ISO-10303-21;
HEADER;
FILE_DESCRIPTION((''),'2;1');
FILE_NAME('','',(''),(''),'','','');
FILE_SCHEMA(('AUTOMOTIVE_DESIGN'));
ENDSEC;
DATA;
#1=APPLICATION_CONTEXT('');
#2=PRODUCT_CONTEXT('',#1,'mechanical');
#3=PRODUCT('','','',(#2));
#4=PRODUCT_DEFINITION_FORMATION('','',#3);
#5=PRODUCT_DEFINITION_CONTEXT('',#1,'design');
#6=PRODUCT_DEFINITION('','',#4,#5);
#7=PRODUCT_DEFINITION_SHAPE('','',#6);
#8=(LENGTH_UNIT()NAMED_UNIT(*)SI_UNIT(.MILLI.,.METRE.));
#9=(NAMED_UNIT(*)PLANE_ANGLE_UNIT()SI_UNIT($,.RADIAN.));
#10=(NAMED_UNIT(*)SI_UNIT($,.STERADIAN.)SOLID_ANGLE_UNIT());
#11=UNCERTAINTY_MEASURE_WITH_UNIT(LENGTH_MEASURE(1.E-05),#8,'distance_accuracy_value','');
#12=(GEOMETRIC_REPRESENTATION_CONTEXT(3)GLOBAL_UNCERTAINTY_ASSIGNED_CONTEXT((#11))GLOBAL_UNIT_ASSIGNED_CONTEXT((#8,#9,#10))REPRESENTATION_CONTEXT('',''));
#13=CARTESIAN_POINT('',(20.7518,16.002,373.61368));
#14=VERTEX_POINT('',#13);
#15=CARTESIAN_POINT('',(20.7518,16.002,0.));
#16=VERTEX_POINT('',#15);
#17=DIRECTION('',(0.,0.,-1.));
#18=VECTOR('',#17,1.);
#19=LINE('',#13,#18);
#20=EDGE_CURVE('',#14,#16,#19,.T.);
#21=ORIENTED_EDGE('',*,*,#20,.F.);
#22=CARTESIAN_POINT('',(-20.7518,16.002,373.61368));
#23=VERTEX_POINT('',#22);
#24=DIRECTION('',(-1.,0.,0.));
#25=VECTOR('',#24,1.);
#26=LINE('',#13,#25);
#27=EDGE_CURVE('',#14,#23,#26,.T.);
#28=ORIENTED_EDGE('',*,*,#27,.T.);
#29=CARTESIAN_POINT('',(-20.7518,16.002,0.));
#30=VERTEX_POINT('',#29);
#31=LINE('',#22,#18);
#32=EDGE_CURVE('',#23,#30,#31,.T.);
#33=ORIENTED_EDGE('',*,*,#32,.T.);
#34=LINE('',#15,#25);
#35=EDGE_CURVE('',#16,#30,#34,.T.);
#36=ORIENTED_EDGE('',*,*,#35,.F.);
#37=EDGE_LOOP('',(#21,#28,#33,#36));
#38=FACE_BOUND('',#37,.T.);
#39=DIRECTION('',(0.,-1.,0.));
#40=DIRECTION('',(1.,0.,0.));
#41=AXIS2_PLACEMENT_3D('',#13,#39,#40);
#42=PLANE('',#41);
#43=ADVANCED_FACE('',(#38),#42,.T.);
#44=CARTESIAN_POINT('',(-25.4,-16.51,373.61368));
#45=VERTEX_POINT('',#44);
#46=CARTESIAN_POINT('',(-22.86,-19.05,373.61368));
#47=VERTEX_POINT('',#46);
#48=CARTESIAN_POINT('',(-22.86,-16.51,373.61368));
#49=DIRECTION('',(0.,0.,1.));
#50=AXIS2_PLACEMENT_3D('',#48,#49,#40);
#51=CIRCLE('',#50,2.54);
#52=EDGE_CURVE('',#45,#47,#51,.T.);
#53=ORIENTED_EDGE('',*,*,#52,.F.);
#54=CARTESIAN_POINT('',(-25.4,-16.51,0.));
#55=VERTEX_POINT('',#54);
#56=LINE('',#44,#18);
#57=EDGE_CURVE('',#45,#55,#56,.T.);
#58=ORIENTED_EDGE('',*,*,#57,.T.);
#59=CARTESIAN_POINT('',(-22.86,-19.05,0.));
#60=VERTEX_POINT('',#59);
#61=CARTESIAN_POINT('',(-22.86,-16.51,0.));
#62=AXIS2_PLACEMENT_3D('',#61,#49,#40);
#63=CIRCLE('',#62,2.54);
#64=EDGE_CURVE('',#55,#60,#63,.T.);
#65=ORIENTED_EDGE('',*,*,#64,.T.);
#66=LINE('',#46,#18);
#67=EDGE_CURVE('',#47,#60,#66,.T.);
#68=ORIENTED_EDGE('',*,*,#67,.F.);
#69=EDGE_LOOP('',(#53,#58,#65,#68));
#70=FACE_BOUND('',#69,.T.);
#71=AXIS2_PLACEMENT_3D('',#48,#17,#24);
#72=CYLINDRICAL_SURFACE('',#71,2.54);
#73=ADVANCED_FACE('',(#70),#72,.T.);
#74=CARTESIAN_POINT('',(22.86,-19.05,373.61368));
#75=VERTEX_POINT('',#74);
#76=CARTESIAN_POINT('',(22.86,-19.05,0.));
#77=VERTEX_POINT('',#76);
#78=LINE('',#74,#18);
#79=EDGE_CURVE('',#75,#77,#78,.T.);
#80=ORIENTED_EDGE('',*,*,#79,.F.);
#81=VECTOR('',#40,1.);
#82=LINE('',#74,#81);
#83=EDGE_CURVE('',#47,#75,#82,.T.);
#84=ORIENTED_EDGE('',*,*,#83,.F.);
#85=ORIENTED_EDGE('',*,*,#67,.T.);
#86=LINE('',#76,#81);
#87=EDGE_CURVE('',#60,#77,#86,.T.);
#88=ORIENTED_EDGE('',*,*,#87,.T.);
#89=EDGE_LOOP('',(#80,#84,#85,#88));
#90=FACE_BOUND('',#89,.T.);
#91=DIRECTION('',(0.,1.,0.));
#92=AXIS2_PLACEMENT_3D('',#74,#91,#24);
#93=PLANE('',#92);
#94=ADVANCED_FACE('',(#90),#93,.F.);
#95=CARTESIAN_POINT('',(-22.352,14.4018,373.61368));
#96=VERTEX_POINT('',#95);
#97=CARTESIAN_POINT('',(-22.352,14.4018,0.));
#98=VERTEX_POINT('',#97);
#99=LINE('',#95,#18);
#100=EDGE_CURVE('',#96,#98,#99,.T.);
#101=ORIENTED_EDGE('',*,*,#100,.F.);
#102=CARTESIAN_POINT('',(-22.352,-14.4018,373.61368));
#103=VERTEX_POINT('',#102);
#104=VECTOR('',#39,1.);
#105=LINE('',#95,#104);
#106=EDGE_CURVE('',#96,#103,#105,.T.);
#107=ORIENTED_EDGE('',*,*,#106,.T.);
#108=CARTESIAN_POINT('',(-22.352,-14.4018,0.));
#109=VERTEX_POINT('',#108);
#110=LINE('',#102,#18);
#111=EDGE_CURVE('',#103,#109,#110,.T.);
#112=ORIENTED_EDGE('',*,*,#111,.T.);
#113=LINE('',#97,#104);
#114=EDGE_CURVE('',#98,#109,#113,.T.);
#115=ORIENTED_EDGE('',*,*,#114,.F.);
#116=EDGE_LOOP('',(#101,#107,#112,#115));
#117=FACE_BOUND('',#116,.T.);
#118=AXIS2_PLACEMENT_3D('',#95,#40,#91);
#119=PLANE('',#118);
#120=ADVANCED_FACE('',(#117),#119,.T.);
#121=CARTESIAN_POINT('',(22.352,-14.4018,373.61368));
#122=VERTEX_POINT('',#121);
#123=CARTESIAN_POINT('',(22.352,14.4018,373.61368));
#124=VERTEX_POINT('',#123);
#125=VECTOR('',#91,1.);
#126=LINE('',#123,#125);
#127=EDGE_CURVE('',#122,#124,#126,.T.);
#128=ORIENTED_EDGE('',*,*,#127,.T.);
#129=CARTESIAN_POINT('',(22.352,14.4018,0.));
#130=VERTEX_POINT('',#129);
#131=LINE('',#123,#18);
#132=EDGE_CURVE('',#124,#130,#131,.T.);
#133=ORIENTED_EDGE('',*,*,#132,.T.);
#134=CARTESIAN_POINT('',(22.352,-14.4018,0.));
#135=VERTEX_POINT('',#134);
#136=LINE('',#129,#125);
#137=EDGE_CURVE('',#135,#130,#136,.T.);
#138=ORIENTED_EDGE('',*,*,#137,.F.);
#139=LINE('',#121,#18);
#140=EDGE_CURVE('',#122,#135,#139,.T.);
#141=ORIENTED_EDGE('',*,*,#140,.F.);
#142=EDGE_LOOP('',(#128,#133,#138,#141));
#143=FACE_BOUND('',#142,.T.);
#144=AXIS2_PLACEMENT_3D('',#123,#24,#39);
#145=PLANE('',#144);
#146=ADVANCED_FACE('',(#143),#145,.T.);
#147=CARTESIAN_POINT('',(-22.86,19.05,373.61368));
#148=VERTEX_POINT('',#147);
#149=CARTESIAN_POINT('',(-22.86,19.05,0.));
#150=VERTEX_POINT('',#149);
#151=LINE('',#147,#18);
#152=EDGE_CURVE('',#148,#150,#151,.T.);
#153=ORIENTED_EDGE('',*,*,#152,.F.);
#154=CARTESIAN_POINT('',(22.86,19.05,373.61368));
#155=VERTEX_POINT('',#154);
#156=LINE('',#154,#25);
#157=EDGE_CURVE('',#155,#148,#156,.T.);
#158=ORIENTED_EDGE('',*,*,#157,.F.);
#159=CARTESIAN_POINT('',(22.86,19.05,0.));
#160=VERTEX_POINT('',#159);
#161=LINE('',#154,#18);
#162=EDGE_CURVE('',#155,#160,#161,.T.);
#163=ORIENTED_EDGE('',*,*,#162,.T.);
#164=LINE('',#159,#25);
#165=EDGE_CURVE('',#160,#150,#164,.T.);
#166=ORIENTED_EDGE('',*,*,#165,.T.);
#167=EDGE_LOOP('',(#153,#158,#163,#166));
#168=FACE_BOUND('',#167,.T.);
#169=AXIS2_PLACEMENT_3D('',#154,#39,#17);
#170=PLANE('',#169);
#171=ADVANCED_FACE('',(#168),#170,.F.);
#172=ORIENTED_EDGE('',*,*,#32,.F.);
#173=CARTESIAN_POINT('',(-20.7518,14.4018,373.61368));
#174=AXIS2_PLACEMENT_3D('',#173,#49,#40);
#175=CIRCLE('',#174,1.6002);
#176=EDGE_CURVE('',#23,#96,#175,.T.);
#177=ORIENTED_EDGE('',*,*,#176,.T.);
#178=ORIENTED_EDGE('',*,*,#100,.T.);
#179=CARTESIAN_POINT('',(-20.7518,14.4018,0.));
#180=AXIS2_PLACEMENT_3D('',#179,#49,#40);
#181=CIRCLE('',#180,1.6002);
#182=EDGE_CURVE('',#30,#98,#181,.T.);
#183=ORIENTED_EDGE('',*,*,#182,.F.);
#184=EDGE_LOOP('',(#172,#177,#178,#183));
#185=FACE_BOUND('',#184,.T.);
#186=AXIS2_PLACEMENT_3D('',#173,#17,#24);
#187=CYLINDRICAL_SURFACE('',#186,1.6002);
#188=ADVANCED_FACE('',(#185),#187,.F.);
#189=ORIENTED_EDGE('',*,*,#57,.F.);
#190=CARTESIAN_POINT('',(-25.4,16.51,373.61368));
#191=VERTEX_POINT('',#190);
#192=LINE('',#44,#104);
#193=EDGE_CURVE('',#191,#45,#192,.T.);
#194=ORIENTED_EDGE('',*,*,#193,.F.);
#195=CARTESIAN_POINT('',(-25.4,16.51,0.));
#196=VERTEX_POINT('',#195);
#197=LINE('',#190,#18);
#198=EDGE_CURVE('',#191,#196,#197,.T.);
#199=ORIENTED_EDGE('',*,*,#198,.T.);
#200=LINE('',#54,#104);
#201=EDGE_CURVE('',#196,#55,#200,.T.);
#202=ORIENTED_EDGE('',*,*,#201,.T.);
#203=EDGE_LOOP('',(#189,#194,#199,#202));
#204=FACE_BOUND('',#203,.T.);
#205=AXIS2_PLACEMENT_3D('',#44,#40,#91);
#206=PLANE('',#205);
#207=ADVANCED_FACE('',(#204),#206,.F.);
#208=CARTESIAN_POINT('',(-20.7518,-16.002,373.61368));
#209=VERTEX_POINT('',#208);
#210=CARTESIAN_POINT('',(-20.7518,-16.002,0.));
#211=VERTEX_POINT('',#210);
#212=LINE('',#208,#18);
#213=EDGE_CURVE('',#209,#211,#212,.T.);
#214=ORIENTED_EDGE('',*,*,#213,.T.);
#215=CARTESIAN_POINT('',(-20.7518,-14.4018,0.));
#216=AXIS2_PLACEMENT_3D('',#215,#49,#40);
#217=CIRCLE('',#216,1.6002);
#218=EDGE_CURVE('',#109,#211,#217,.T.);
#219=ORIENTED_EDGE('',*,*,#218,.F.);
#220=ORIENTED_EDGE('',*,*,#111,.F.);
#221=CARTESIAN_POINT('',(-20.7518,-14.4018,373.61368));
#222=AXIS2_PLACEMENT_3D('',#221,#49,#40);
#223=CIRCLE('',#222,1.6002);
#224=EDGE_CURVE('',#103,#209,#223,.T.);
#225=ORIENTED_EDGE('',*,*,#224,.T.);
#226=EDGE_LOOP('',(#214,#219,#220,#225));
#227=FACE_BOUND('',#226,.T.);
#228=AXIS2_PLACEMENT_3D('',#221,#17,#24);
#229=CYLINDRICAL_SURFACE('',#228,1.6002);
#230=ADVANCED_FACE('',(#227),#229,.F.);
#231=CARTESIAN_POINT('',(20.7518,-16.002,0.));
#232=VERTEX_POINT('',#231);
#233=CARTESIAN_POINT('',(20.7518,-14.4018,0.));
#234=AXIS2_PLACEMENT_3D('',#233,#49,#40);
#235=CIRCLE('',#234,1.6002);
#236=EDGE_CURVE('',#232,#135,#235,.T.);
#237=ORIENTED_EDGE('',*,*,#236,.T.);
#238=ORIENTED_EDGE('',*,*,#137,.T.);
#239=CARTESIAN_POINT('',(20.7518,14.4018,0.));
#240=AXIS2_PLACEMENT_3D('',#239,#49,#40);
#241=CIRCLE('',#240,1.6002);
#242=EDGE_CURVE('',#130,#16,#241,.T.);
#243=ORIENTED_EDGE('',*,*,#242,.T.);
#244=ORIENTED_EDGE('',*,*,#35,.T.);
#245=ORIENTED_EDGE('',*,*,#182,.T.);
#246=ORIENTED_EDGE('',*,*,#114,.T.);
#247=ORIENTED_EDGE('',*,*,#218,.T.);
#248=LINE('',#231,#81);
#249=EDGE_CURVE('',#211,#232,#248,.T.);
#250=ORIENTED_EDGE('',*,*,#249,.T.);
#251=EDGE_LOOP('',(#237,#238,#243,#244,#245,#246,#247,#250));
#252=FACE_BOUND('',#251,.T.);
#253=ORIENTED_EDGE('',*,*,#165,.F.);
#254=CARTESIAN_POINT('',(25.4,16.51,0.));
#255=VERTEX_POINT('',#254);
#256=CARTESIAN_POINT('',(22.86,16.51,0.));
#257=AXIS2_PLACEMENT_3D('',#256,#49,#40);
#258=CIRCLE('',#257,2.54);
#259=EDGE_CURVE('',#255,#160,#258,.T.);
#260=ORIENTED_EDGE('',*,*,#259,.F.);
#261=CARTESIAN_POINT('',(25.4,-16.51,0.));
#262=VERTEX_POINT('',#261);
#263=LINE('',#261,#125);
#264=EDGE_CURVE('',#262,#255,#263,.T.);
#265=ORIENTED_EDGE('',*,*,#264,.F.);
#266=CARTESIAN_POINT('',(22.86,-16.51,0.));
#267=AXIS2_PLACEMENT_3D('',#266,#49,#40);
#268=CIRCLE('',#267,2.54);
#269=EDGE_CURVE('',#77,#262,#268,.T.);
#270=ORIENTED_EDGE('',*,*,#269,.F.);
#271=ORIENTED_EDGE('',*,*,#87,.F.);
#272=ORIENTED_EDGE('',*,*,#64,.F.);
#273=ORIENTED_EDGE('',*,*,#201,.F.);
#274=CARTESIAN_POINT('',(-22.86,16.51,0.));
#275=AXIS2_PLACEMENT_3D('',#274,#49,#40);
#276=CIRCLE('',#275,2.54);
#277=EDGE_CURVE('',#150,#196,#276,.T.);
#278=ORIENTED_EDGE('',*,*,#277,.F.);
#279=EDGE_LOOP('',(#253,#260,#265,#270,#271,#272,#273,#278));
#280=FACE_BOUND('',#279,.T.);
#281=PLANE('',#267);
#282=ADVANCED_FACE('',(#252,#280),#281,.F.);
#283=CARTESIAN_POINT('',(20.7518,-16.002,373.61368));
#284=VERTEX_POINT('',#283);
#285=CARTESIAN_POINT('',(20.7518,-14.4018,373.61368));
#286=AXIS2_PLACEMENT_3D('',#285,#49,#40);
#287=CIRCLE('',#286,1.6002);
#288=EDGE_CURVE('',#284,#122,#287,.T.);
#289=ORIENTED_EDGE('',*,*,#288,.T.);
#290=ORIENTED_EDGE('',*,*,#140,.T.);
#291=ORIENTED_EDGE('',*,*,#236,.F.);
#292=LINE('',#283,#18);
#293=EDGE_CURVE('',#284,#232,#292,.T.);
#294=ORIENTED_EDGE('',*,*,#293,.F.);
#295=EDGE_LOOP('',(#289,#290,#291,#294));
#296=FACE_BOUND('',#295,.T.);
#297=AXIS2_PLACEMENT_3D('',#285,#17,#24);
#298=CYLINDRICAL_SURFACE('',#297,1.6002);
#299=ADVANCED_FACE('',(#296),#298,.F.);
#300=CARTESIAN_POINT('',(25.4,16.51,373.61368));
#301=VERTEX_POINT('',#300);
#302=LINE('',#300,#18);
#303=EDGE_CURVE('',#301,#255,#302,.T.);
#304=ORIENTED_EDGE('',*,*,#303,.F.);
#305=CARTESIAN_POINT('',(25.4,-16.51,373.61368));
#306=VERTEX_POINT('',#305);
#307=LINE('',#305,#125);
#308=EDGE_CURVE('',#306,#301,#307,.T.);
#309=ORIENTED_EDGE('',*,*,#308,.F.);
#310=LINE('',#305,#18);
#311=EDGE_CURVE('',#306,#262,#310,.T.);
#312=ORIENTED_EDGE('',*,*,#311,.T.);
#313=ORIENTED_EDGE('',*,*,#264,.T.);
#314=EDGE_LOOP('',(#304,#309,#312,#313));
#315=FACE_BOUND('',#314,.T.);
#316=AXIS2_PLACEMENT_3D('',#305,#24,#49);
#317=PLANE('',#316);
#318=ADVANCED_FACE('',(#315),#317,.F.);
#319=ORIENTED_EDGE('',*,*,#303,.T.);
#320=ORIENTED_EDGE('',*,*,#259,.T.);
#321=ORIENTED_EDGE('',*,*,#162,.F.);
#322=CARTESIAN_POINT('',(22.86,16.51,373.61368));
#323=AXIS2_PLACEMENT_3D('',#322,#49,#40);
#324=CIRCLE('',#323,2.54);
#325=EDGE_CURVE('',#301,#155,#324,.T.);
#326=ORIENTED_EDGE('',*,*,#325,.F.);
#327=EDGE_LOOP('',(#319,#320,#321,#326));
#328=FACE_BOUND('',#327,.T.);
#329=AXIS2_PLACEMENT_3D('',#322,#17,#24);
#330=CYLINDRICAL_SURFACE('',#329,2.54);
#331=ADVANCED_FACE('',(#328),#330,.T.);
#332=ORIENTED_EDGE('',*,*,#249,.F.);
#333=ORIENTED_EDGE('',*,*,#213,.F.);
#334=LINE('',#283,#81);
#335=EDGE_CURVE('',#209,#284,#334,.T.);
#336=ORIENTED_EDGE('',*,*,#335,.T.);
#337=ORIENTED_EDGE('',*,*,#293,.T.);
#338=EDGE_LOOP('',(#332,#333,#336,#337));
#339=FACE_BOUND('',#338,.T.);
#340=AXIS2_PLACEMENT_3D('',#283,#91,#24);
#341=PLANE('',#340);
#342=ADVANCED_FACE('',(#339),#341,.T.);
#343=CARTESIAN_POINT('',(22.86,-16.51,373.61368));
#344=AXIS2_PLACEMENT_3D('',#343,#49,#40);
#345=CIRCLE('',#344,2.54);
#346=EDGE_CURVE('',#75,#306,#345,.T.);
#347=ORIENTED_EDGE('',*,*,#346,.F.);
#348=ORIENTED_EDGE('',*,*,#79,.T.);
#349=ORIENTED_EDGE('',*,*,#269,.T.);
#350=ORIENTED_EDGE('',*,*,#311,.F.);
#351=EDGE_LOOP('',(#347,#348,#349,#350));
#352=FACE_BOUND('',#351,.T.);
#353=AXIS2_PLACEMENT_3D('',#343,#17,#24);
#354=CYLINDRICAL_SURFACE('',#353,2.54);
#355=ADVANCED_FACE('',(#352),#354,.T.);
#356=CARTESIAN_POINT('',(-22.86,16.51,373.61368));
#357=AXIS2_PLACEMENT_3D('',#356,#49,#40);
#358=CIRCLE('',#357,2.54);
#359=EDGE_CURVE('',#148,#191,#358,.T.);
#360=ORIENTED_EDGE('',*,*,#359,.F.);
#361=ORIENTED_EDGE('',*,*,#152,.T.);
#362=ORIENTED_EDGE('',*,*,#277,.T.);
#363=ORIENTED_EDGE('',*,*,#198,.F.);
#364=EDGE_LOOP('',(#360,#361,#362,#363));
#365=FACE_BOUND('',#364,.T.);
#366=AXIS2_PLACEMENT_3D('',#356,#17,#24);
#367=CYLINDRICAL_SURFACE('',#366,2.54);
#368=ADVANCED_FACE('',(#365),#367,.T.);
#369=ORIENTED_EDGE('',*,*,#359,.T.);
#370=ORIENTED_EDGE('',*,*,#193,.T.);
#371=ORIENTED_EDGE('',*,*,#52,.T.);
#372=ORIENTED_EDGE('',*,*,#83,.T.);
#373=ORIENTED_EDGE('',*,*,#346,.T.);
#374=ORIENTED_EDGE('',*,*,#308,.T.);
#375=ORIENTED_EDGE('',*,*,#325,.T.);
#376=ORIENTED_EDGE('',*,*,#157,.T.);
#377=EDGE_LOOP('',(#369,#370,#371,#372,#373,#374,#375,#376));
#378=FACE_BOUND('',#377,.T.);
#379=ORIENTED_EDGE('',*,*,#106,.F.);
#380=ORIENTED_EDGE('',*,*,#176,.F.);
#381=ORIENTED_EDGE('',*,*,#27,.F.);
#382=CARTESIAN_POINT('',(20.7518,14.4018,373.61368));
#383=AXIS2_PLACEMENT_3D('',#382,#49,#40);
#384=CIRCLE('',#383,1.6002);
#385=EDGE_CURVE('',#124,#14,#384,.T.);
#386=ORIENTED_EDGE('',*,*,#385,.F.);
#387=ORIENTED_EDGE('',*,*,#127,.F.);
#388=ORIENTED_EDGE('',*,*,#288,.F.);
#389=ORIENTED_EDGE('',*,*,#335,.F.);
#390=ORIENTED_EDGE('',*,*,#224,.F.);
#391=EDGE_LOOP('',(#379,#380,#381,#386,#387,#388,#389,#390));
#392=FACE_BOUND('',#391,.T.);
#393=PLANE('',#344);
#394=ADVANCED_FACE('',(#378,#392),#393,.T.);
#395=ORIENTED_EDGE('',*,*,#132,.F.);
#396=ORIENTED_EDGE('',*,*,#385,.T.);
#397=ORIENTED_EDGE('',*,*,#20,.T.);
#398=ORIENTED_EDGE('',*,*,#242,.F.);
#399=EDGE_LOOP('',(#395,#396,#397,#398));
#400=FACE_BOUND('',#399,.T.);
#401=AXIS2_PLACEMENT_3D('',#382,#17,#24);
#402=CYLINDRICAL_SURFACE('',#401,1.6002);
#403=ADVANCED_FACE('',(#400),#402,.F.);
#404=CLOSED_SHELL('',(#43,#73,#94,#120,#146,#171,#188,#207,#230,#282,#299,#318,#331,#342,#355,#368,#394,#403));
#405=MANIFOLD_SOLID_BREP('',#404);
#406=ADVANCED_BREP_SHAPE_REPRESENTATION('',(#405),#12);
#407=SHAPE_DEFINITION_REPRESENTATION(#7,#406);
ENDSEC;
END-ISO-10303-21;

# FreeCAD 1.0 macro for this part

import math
import FreeCAD as App
import Part
import Sketcher
Q = App.Units.Quantity

doc = App.newDocument("Part")
body = doc.addObject("PartDesign::Body", "Body")

sketch1 = doc.addObject("Sketcher::SketchObject", "Sketch")
body.addObject(sketch1)
sketch1.AttachmentSupport = (doc.XY_Plane, [""])
sketch1.MapMode = "FlatFace"
sketch1.addGeometry([
    Part.LineSegment(App.Vector(25.4, -16.5, 0), App.Vector(25.4, 16.5, 0)),
    Part.ArcOfCircle(Part.Circle(App.Vector(22.9, 16.5, 0), App.Vector(0, 0, 1), 2.5), math.radians(0), math.radians(90)),
    Part.LineSegment(App.Vector(22.9, 19.1, 0), App.Vector(-22.9, 19.1, 0)),
    Part.ArcOfCircle(Part.Circle(App.Vector(-22.9, 16.5, 0), App.Vector(0, 0, 1), 2.5), math.radians(90), math.radians(180)),
    Part.LineSegment(App.Vector(-25.4, 16.5, 0), App.Vector(-25.4, -16.5, 0)),
    Part.ArcOfCircle(Part.Circle(App.Vector(-22.9, -16.5, 0), App.Vector(0, 0, 1), 2.5), math.radians(-180), math.radians(-90)),
    Part.LineSegment(App.Vector(-22.9, -19.1, 0), App.Vector(22.9, -19.1, 0)),
    Part.ArcOfCircle(Part.Circle(App.Vector(22.9, -16.5, 0), App.Vector(0, 0, 1), 2.5), math.radians(-90), math.radians(0)),
    Part.ArcOfCircle(Part.Circle(App.Vector(20.8, 14.4, 0), App.Vector(0, 0, 1), 1.6), math.radians(0), math.radians(90)),
    Part.LineSegment(App.Vector(22.4, 14.4, 0), App.Vector(22.4, -14.4, 0)),
    Part.ArcOfCircle(Part.Circle(App.Vector(20.8, -14.4, 0), App.Vector(0, 0, 1), 1.6), math.radians(-90), math.radians(0)),
    Part.LineSegment(App.Vector(20.8, -16, 0), App.Vector(-20.8, -16, 0)),
    Part.ArcOfCircle(Part.Circle(App.Vector(-20.8, -14.4, 0), App.Vector(0, 0, 1), 1.6), math.radians(-180), math.radians(-90)),
    Part.LineSegment(App.Vector(-22.4, -14.4, 0), App.Vector(-22.4, 14.4, 0)),
    Part.ArcOfCircle(Part.Circle(App.Vector(-20.8, 14.4, 0), App.Vector(0, 0, 1), 1.6), math.radians(90), math.radians(180)),
    Part.LineSegment(App.Vector(-20.8, 16, 0), App.Vector(20.8, 16, 0)),
], False)
sketch1.addConstraint([
    Sketcher.Constraint("Tangent", 0, 2, 1, 1),
    Sketcher.Constraint("Tangent", 1, 2, 2, 1),
    Sketcher.Constraint("Tangent", 2, 2, 3, 1),
    Sketcher.Constraint("Tangent", 3, 2, 4, 1),
    Sketcher.Constraint("Tangent", 4, 2, 5, 1),
    Sketcher.Constraint("Tangent", 5, 2, 6, 1),
    Sketcher.Constraint("Tangent", 6, 2, 7, 1),
    Sketcher.Constraint("Tangent", 7, 2, 0, 1),
    Sketcher.Constraint("Tangent", 8, 1, 9, 1),
    Sketcher.Constraint("Tangent", 9, 2, 10, 2),
    Sketcher.Constraint("Tangent", 10, 1, 11, 1),
    Sketcher.Constraint("Tangent", 11, 2, 12, 2),
    Sketcher.Constraint("Tangent", 12, 1, 13, 1),
    Sketcher.Constraint("Tangent", 13, 2, 14, 2),
    Sketcher.Constraint("Tangent", 14, 1, 15, 1),
    Sketcher.Constraint("Tangent", 15, 2, 8, 2),
    Sketcher.Constraint("Vertical", 0),
    Sketcher.Constraint("Horizontal", 2),
    Sketcher.Constraint("Vertical", 4),
    Sketcher.Constraint("Horizontal", 6),
    Sketcher.Constraint("Vertical", 9),
    Sketcher.Constraint("Horizontal", 11),
    Sketcher.Constraint("Vertical", 13),
    Sketcher.Constraint("Horizontal", 15),
    Sketcher.Constraint("Equal", 1, 3),
    Sketcher.Constraint("Equal", 3, 5),
    Sketcher.Constraint("Equal", 5, 7),
    Sketcher.Constraint("Equal", 8, 10),
    Sketcher.Constraint("Equal", 10, 12),
    Sketcher.Constraint("Equal", 12, 14),
    Sketcher.Constraint("Symmetric", 1, 3, 5, 3, -1, 1),
    Sketcher.Constraint("Symmetric", 8, 3, 12, 3, -1, 1),
    Sketcher.Constraint("Radius", 1, Q("0.1 in")),
    Sketcher.Constraint("DistanceX", 2, 2, 2, 1, Q("1.8 in")),
    Sketcher.Constraint("DistanceY", 0, 1, 0, 2, Q("1.3 in")),
    Sketcher.Constraint("Radius", 8, Q("0.063 in")),
    Sketcher.Constraint("DistanceX", 11, 2, 11, 1, Q("1.634 in")),
    Sketcher.Constraint("DistanceY", 9, 2, 9, 1, Q("1.134 in")),
])
pad1 = doc.addObject("PartDesign::Pad", "Pad")
body.addObject(pad1)
pad1.Profile = sketch1
pad1.Length = Q("14.7092 in")

doc.recompute()
